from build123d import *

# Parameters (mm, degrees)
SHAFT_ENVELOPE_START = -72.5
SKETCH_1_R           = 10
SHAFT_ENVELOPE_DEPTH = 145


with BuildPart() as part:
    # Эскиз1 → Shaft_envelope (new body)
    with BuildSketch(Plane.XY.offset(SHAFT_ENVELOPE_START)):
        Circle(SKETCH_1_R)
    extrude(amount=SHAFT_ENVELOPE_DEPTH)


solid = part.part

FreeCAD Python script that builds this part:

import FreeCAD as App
import Part
import Sketcher
from FreeCAD import Vector

doc = App.newDocument("Part")
body = doc.addObject("PartDesign::Body", "Body")

sketch1 = body.newObject("Sketcher::SketchObject", "Sketch")
sketch1.AttachmentSupport = (doc.getObject("XY_Plane"), [""])
sketch1.MapMode = "FlatFace"
sketch1.AttachmentOffset = App.Placement(Vector(0, 0, -72.5), App.Rotation())
sketch1.addGeometry(Part.Circle(Vector(0, 0, 0), Vector(0, 0, 1), 10), False)
sketch1.addConstraint([
    Sketcher.Constraint("Coincident", 0, 3, -1, 1),
    Sketcher.Constraint("Diameter", 0, 20.0),
])
pad1 = body.newObject("PartDesign::Pad", "Pad")
pad1.Profile = sketch1
pad1.Length = 145

doc.recompute()
